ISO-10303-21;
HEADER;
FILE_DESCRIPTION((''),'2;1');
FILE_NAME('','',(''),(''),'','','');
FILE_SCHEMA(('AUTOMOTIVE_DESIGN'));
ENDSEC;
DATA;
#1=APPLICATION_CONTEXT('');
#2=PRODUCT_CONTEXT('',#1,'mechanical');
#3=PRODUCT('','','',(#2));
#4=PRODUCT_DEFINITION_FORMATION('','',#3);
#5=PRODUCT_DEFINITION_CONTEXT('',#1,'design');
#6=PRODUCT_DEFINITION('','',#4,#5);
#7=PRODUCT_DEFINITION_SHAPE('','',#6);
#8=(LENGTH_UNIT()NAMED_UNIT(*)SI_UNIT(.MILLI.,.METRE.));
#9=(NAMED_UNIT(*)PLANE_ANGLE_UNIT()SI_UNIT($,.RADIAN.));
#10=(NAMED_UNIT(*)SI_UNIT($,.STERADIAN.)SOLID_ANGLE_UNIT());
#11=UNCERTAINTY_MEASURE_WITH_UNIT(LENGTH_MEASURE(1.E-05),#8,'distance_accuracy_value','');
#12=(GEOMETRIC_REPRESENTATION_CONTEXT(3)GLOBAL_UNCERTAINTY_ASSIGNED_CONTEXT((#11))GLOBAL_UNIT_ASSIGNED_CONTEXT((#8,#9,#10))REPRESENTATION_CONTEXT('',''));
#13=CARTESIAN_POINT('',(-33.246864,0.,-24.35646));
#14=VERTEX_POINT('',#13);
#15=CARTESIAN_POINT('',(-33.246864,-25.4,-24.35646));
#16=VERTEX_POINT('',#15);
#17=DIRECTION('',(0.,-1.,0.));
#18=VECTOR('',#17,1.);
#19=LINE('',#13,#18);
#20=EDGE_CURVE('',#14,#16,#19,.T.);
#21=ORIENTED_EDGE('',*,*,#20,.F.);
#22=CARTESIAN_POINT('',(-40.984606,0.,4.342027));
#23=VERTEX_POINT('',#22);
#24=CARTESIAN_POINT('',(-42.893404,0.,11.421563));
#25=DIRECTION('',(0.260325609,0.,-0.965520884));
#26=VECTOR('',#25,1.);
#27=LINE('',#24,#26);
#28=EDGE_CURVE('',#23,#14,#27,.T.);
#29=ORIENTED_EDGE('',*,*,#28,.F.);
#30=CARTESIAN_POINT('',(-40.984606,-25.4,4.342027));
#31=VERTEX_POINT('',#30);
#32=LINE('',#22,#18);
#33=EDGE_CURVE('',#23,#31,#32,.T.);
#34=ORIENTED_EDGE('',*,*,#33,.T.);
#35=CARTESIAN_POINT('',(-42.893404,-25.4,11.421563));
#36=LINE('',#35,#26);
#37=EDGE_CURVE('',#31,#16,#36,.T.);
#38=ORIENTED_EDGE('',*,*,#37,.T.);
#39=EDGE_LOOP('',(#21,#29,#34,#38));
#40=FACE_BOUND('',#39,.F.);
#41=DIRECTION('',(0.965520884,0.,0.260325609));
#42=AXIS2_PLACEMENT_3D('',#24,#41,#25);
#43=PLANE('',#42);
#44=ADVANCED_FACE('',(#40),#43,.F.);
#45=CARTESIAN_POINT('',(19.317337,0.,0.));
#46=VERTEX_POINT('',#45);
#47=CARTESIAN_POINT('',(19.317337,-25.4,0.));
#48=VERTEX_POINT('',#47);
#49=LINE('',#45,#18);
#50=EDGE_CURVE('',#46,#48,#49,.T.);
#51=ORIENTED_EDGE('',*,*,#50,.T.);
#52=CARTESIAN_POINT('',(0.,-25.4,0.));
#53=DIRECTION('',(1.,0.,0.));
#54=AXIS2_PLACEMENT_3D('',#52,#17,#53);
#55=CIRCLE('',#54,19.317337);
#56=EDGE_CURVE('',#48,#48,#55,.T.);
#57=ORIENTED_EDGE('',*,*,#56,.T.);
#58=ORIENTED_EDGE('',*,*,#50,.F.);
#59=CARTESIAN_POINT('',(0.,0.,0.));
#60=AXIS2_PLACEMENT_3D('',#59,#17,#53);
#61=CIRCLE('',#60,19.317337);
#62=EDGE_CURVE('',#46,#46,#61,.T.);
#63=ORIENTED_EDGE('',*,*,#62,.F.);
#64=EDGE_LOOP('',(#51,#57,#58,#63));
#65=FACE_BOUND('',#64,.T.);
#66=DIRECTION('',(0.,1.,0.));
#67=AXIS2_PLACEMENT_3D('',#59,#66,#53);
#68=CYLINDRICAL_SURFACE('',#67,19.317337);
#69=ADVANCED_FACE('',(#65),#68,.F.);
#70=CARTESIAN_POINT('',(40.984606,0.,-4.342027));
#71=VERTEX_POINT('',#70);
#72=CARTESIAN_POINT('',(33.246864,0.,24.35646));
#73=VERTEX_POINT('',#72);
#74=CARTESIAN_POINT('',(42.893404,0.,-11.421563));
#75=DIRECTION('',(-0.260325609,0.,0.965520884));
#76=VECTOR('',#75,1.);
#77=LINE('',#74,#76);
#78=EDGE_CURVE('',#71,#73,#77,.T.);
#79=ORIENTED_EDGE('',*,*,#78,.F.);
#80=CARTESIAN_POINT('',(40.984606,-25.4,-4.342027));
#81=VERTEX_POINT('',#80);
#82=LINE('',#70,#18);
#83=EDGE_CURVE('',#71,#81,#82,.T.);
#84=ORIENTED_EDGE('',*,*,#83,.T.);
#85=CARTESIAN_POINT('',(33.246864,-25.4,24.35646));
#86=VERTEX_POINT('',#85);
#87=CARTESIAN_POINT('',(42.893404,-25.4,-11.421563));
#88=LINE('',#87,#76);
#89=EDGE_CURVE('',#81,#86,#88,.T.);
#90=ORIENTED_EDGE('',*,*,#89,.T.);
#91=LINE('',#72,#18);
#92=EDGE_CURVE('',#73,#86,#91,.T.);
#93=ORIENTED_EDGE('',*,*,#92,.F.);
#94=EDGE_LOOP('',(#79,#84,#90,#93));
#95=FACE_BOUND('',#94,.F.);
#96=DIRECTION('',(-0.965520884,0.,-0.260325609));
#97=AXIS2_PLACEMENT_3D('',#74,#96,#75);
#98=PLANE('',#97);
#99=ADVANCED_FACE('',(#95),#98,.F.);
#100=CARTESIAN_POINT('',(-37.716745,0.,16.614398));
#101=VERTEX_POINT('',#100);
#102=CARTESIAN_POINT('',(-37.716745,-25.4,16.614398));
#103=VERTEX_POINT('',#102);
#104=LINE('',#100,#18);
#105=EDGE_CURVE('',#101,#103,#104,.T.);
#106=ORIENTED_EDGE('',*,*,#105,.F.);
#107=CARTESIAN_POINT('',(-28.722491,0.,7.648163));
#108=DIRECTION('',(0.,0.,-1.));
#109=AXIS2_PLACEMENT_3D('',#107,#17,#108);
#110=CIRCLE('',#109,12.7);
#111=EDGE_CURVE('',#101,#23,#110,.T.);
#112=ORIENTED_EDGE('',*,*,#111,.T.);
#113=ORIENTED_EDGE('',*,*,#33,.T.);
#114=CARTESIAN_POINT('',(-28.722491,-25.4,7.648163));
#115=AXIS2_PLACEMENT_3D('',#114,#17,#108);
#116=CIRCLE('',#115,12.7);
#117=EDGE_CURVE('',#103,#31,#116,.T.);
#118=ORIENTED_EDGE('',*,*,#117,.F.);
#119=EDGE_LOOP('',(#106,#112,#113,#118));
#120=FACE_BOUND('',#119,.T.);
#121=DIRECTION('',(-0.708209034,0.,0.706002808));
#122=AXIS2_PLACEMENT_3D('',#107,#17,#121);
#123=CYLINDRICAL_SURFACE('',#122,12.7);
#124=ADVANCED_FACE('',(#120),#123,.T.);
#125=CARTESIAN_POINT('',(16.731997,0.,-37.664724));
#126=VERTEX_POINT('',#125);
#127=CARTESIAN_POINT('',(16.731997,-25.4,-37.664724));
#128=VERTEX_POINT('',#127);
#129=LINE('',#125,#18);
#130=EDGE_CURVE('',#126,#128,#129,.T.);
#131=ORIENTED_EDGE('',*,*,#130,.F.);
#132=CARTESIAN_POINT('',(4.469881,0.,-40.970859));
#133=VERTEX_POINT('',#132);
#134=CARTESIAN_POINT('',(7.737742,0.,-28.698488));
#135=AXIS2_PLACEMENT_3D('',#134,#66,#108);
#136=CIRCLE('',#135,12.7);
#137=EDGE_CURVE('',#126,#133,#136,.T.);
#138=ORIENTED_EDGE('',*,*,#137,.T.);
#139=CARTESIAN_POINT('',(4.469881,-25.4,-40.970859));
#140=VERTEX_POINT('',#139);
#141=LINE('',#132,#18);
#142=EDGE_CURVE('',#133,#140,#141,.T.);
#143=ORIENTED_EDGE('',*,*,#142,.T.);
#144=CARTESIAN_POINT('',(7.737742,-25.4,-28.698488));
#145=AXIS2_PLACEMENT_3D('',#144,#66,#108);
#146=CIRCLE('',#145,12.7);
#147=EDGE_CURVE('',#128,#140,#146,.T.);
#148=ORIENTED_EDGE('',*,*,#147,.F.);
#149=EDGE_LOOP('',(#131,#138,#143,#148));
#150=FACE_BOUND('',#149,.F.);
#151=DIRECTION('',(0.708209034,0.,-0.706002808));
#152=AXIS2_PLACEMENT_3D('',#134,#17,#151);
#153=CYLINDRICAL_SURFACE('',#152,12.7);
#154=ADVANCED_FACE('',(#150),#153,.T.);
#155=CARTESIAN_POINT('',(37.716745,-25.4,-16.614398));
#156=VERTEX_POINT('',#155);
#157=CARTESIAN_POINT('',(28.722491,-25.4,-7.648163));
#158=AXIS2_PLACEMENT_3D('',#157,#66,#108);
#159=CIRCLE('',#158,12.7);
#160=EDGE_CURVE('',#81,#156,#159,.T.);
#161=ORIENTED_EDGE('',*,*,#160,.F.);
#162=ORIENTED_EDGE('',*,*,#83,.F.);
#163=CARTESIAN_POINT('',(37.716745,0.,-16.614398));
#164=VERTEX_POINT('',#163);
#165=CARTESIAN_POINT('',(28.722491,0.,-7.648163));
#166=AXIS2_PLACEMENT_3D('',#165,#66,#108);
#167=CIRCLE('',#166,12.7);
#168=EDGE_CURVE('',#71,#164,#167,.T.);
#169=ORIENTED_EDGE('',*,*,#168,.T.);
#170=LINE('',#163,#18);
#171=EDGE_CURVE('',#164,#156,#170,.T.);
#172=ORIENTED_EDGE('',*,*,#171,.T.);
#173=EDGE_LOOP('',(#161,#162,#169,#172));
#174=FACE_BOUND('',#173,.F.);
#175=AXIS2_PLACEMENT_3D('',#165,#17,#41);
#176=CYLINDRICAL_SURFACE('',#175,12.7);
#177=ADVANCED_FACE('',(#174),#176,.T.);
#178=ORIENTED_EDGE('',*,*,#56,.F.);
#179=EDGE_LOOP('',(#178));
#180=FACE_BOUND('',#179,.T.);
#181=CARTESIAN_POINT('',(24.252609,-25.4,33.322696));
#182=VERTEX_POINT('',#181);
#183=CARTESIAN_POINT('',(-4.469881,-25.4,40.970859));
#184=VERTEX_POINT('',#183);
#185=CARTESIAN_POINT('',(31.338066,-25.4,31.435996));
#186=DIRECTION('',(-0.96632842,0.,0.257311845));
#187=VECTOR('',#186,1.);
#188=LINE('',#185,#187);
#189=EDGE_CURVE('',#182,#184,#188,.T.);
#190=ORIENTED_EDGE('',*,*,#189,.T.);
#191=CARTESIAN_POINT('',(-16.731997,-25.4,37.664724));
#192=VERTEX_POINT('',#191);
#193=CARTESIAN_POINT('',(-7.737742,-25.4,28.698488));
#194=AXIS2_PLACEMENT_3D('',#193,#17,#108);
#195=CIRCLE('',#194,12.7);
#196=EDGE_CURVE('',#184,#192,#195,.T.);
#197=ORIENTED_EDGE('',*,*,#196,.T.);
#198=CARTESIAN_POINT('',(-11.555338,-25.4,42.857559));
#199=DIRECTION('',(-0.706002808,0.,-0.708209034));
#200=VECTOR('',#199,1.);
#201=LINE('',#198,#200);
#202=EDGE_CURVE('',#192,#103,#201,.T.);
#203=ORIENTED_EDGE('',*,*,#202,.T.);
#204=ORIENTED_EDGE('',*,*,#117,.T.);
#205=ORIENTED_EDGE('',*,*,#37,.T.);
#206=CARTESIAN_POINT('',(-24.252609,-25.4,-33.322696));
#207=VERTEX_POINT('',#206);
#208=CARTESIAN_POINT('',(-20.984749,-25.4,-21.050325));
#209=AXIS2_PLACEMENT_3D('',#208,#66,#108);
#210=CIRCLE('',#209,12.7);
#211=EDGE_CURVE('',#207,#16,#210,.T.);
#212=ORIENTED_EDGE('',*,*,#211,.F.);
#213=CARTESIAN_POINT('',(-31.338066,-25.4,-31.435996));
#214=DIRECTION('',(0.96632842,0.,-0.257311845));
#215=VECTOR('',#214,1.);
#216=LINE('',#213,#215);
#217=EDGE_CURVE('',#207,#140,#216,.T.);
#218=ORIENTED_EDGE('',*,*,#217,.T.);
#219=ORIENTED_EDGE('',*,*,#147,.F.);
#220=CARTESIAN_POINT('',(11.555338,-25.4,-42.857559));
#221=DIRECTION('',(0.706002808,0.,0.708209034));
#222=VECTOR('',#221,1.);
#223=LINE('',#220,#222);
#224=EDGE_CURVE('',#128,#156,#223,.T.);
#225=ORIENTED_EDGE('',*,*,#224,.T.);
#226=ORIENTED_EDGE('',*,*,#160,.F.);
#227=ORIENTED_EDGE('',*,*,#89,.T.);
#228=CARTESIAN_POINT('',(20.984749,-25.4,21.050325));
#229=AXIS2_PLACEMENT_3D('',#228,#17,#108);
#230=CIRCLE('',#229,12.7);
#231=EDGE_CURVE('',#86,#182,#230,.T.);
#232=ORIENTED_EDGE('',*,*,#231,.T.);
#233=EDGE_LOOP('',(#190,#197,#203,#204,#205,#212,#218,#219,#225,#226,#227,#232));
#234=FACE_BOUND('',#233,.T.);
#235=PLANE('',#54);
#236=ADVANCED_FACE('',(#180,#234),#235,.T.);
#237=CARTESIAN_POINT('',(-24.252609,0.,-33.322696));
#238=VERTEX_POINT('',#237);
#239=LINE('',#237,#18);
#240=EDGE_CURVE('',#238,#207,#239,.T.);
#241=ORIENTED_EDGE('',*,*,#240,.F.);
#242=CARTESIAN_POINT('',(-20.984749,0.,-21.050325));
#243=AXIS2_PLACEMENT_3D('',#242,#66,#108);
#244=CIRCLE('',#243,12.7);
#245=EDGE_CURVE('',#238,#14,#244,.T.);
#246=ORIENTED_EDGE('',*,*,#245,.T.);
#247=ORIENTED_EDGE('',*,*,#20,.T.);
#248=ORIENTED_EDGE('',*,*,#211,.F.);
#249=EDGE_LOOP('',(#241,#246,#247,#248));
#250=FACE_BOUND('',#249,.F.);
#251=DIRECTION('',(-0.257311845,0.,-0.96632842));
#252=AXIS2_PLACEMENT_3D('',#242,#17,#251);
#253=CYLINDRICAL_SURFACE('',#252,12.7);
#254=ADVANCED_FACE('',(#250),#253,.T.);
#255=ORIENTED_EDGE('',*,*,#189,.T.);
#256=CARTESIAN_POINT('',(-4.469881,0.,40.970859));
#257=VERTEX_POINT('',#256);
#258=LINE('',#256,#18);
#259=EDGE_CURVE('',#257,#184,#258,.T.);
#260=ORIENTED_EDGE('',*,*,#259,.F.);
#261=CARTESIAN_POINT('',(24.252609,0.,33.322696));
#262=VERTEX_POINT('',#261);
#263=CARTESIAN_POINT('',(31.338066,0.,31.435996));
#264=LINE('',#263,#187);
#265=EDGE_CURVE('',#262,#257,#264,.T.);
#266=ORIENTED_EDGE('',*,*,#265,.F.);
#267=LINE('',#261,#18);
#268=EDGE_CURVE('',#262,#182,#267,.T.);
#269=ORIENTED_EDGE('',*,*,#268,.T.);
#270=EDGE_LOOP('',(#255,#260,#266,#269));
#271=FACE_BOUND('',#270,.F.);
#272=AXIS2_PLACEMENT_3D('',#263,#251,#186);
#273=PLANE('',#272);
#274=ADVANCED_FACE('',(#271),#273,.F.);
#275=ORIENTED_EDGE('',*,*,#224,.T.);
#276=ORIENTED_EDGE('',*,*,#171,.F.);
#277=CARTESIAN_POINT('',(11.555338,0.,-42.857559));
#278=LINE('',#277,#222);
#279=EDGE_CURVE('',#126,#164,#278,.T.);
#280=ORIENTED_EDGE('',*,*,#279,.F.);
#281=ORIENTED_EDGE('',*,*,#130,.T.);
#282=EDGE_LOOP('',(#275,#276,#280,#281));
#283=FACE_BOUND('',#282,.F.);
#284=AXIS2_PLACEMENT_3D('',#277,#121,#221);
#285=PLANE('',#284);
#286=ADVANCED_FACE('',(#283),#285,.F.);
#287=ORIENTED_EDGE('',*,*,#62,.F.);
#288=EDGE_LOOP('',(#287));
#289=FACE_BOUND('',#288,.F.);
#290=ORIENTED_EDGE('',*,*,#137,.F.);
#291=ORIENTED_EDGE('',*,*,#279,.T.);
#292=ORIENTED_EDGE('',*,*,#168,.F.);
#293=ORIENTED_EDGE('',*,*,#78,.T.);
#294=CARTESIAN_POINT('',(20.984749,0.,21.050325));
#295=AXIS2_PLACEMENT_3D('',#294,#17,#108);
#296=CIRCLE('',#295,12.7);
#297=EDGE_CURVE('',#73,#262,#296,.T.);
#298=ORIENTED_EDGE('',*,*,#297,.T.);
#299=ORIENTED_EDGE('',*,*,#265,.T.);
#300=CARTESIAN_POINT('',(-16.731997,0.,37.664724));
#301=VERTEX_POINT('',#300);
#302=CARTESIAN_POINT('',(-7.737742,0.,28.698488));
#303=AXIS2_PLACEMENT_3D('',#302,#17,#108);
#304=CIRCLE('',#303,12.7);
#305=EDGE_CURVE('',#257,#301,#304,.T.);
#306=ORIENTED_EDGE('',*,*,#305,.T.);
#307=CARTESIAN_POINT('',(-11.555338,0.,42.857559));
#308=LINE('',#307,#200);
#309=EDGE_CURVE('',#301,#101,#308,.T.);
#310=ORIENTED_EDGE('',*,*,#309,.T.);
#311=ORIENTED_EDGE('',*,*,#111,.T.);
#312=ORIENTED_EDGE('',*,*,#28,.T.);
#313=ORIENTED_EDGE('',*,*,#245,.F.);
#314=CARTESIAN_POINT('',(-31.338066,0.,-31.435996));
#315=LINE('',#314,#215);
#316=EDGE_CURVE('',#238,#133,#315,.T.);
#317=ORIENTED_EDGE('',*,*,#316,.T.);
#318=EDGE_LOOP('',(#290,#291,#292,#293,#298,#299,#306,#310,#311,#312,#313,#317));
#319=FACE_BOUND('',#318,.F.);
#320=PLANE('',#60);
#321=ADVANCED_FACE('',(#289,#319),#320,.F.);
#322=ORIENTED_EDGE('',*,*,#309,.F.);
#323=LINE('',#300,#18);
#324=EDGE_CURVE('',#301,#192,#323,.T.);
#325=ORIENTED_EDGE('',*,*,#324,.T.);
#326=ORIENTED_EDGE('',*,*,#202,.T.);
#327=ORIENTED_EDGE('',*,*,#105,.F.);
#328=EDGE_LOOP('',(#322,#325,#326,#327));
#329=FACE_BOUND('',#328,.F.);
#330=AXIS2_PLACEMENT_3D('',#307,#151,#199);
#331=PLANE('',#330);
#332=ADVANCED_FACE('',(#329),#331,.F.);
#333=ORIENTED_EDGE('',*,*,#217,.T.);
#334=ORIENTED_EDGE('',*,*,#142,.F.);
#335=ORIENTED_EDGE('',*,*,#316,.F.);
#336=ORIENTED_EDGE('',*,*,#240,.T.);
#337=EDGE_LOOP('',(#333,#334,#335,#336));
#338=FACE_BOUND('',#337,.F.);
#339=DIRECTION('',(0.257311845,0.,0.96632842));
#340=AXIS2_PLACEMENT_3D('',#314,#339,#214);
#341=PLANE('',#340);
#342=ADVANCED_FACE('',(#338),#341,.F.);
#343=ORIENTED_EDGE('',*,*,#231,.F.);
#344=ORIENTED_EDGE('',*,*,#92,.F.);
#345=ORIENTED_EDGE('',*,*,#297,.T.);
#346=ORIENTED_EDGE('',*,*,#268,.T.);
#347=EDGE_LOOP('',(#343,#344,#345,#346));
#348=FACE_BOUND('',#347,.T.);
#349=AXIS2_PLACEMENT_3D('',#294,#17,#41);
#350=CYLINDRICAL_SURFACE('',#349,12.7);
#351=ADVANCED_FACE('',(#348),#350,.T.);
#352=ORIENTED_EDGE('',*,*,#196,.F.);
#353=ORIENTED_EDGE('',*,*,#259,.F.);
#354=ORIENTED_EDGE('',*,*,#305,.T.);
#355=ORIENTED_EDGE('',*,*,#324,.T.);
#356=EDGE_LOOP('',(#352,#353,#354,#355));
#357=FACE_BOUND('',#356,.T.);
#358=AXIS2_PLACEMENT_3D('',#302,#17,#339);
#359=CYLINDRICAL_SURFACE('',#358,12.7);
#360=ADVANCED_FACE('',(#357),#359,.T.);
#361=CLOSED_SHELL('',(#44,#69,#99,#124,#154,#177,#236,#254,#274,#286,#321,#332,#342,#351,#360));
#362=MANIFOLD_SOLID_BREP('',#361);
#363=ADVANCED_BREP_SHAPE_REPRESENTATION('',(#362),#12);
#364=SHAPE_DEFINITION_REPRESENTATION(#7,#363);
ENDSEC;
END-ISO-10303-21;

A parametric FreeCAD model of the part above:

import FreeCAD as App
import Part
import Sketcher

V = App.Vector
Q = App.Units.Quantity


def edges_at(feature, points):
    """Names of the edges that pass closest to the given points."""
    edges = feature.Shape.Edges
    near = lambda p: min(range(len(edges)), key=lambda i: edges[i].distToShape(Part.Vertex(*p))[0])
    return sorted({f"Edge{near(p) + 1}" for p in points})

doc = App.newDocument("Part")
body = doc.addObject("PartDesign::Body", "Body")

sketch1 = body.newObject("Sketcher::SketchObject", "Sketch")
sketch1.AttachmentSupport = (doc.getObject("XZ_Plane"), [""])
sketch1.MapMode = "FlatFace"
sketch1.addGeometry(Part.LineSegment(V(43, -11, 0), V(31, 31, 0)), False)
sketch1.addGeometry(Part.LineSegment(V(31, 31, 0), V(-12, 43, 0)), False)
sketch1.addGeometry(Part.LineSegment(V(-12, 43, 0), V(-43, 11, 0)), False)
sketch1.addGeometry(Part.LineSegment(V(-43, 11, 0), V(-31, -31, 0)), False)
sketch1.addGeometry(Part.LineSegment(V(-31, -31, 0), V(12, -43, 0)), False)
sketch1.addGeometry(Part.LineSegment(V(12, -43, 0), V(43, -11, 0)), False)
sketch1.addGeometry(Part.Circle(V(0, 0, 0), V(0, 0, 1), 19), False)
sketch1.addConstraint(Sketcher.Constraint("Coincident", 0, 2, 1, 1))
sketch1.addConstraint(Sketcher.Constraint("Coincident", 1, 2, 2, 1))
sketch1.addConstraint(Sketcher.Constraint("Coincident", 2, 2, 3, 1))
sketch1.addConstraint(Sketcher.Constraint("Coincident", 3, 2, 4, 1))
sketch1.addConstraint(Sketcher.Constraint("Coincident", 4, 2, 5, 1))
sketch1.addConstraint(Sketcher.Constraint("Coincident", 5, 2, 0, 1))
sketch1.addConstraint(Sketcher.Constraint("Coincident", 6, 3, -1, 1))
sketch1.addConstraint(Sketcher.Constraint("Symmetric", 0, 2, 3, 2, -1, 1))
sketch1.addConstraint(Sketcher.Constraint("Symmetric", 1, 2, 4, 2, -1, 1))
sketch1.addConstraint(Sketcher.Constraint("Symmetric", 2, 2, 5, 2, -1, 1))
sketch1.addConstraint(Sketcher.Constraint("Equal", 0, 1))
sketch1.addConstraint(Sketcher.Constraint("Equal", 1, 2))
sketch1.addConstraint(Sketcher.Constraint("Diameter", 6, Q("38.634674 mm")))
sketch1.addConstraint(Sketcher.Constraint("Distance", 0, Q("44.388019 mm")))
sketch1.addConstraint(Sketcher.Constraint("DistanceX", 1, 2, -1, 1, Q("11.555338 mm")))
sketch1.addConstraint(Sketcher.Constraint("DistanceY", -1, 1, 1, 2, Q("42.857559 mm")))
sketch1.addConstraint(Sketcher.Constraint("DistanceX", 2, 2, 0, 2, Q("74.23147 mm")))
pad1 = body.newObject("PartDesign::Pad", "Pad")
pad1.Profile = sketch1
pad1.Length = Q("1 in")
doc.recompute()

fillet = body.newObject("PartDesign::Fillet", "Fillet")
fillet.Base = (pad1, edges_at(pad1, [
    (-42.893, -12.7, 11.422),
    (-31.338, -12.7, -31.436),
    (11.555, -12.7, -42.858),
    (42.893, -12.7, -11.422),
    (31.338, -12.7, 31.436),
    (-11.555, -12.7, 42.858),
]))
fillet.Radius = Q("0.5 in")

doc.recompute()
